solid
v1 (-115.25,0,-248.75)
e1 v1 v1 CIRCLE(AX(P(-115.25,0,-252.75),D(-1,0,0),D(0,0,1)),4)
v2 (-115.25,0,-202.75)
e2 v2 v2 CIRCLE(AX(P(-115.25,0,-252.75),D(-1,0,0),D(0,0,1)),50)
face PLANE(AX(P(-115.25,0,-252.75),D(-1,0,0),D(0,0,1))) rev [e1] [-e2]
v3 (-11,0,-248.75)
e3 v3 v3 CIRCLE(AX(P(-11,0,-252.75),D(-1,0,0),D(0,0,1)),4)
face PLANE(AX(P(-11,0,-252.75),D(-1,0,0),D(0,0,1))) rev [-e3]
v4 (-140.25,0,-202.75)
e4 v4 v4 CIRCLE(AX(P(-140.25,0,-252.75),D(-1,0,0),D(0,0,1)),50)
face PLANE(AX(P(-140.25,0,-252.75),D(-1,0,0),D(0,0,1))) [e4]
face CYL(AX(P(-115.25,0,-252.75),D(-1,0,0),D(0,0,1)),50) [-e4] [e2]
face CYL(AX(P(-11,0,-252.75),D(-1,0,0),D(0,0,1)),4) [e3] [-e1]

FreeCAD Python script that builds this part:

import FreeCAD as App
import Part
import Sketcher

V = App.Vector
Q = App.Units.Quantity

doc = App.newDocument("Part")
params = doc.addObject("Spreadsheet::Sheet", "Params")
for row, (alias, value) in enumerate([
    ("sketch1_diameter", "100 mm"),
    ("pad1_length", "25 mm"),
    ("sketch2_diameter", "8 mm"),
    ("pad2_length", "129.25 mm"),
], start=1):
    params.set(f"A{row}", alias)
    params.set(f"B{row}", "=" + value)
    params.setAlias(f"B{row}", alias)

body = doc.addObject("PartDesign::Body", "Body")

# Sketch on YZ plane
sketch1 = doc.addObject("Sketcher::SketchObject", "Sketch")
body.addObject(sketch1)
sketch1.AttachmentSupport = (doc.YZ_Plane, [""])
sketch1.MapMode = "FlatFace"
sketch1.AttachmentOffset = App.Placement(V(0, 0, -140.25), App.Rotation())
sketch1.addGeometry(Part.Circle(V(0, -253, 0), V(0, 0, 1), 50), False)
sketch1.addConstraint(Sketcher.Constraint("PointOnObject", 0, 3, -2))
sketch1.addConstraint(Sketcher.Constraint("Diameter", 0, Q("100 mm")))
sketch1.addConstraint(Sketcher.Constraint("DistanceY", 0, 3, -1, 1, Q("252.75 mm")))
sketch1.setExpression("Constraints[1]", "Params.sketch1_diameter")
pad1 = doc.addObject("PartDesign::Pad", "Pad")
body.addObject(pad1)
pad1.Profile = sketch1
pad1.setExpression("Length", "Params.pad1_length")

# Sketch on YZ plane
sketch2 = doc.addObject("Sketcher::SketchObject", "Sketch001")
body.addObject(sketch2)
sketch2.AttachmentSupport = (doc.YZ_Plane, [""])
sketch2.MapMode = "FlatFace"
sketch2.AttachmentOffset = App.Placement(V(0, 0, -140.25), App.Rotation())
sketch2.addGeometry(Part.Circle(V(0, -252.8, 0), V(0, 0, 1), 4), False)
sketch2.addConstraint(Sketcher.Constraint("PointOnObject", 0, 3, -2))
sketch2.addConstraint(Sketcher.Constraint("Diameter", 0, Q("8 mm")))
sketch2.addConstraint(Sketcher.Constraint("DistanceY", 0, 3, -1, 1, Q("252.75 mm")))
sketch2.setExpression("Constraints[1]", "Params.sketch2_diameter")
pad2 = doc.addObject("PartDesign::Pad", "Pad001")
body.addObject(pad2)
pad2.Profile = sketch2
pad2.setExpression("Length", "Params.pad2_length")

doc.recompute()
